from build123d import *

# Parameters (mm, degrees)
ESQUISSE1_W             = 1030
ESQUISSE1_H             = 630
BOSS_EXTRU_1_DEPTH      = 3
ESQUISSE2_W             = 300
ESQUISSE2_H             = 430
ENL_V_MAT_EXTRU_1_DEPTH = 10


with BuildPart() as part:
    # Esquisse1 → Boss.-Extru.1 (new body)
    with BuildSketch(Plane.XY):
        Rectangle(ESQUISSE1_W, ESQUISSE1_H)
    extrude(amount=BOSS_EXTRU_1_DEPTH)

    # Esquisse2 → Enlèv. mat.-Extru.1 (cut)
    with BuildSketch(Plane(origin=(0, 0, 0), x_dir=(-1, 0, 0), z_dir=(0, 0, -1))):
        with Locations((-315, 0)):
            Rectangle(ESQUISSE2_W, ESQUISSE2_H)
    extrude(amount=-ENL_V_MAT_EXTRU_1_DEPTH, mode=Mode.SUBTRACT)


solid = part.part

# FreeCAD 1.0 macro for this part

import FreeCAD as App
import Part
import Sketcher

V = App.Vector
Q = App.Units.Quantity

doc = App.newDocument("Part")
params = doc.addObject("Spreadsheet::Sheet", "Params")
for row, (alias, value) in enumerate([
    ("sketch1_width", "1030 mm"),
    ("sketch1_height", "630 mm"),
    ("pad1_length", "3 mm"),
    ("sketch2_width", "300 mm"),
    ("sketch2_height", "430 mm"),
    ("pocket1_length", "10 mm"),
], start=1):
    params.set(f"A{row}", alias)
    params.set(f"B{row}", "=" + value)
    params.setAlias(f"B{row}", alias)

body = doc.addObject("PartDesign::Body", "Body")

# Sketch on XY plane
sketch1 = doc.addObject("Sketcher::SketchObject", "Sketch")
body.addObject(sketch1)
sketch1.AttachmentSupport = (doc.XY_Plane, [""])
sketch1.MapMode = "FlatFace"
sketch1.addGeometry([
    Part.LineSegment(V(-515, 315, 0), V(-515, -315, 0)),
    Part.LineSegment(V(-515, -315, 0), V(515, -315, 0)),
    Part.LineSegment(V(515, -315, 0), V(515, 315, 0)),
    Part.LineSegment(V(515, 315, 0), V(-515, 315, 0)),
], False)
sketch1.addConstraint([
    Sketcher.Constraint("Coincident", 0, 2, 1, 1),
    Sketcher.Constraint("Coincident", 1, 2, 2, 1),
    Sketcher.Constraint("Coincident", 2, 2, 3, 1),
    Sketcher.Constraint("Coincident", 3, 2, 0, 1),
    Sketcher.Constraint("Vertical", 0),
    Sketcher.Constraint("Horizontal", 1),
    Sketcher.Constraint("Vertical", 2),
    Sketcher.Constraint("Horizontal", 3),
    Sketcher.Constraint("Symmetric", 0, 2, 2, 2, -1, 1),
    Sketcher.Constraint("DistanceX", 1, 1, 1, 2, Q("1030 mm")),
    Sketcher.Constraint("DistanceY", 0, 2, 0, 1, Q("630 mm")),
])
sketch1.setExpression("Constraints[9]", "Params.sketch1_width")
sketch1.setExpression("Constraints[10]", "Params.sketch1_height")
pad1 = doc.addObject("PartDesign::Pad", "Pad")
body.addObject(pad1)
pad1.Profile = sketch1
pad1.setExpression("Length", "Params.pad1_length")

# Sketch on XY plane
sketch2 = doc.addObject("Sketcher::SketchObject", "Sketch001")
body.addObject(sketch2)
sketch2.AttachmentSupport = (doc.XY_Plane, [""])
sketch2.MapMode = "FlatFace"
sketch2.addGeometry([
    Part.LineSegment(V(465, 215, 0), V(465, -215, 0)),
    Part.LineSegment(V(465, -215, 0), V(165, -215, 0)),
    Part.LineSegment(V(165, -215, 0), V(165, 215, 0)),
    Part.LineSegment(V(165, 215, 0), V(465, 215, 0)),
], False)
sketch2.addConstraint([
    Sketcher.Constraint("Coincident", 0, 2, 1, 1),
    Sketcher.Constraint("Coincident", 1, 2, 2, 1),
    Sketcher.Constraint("Coincident", 2, 2, 3, 1),
    Sketcher.Constraint("Coincident", 3, 2, 0, 1),
    Sketcher.Constraint("Vertical", 0),
    Sketcher.Constraint("Horizontal", 1),
    Sketcher.Constraint("Vertical", 2),
    Sketcher.Constraint("Horizontal", 3),
    Sketcher.Constraint("DistanceX", 1, 2, 1, 1, Q("300 mm")),
    Sketcher.Constraint("DistanceY", 0, 2, 0, 1, Q("430 mm")),
    Sketcher.Constraint("DistanceX", -1, 1, 0, 2, Q("465 mm")),
    Sketcher.Constraint("DistanceY", 0, 2, -1, 1, Q("215 mm")),
])
sketch2.setExpression("Constraints[8]", "Params.sketch2_width")
sketch2.setExpression("Constraints[9]", "Params.sketch2_height")
pocket1 = doc.addObject("PartDesign::Pocket", "Pocket")
body.addObject(pocket1)
pocket1.Profile = sketch2
pocket1.setExpression("Length", "Params.pocket1_length")
pocket1.Reversed = True

doc.recompute()
